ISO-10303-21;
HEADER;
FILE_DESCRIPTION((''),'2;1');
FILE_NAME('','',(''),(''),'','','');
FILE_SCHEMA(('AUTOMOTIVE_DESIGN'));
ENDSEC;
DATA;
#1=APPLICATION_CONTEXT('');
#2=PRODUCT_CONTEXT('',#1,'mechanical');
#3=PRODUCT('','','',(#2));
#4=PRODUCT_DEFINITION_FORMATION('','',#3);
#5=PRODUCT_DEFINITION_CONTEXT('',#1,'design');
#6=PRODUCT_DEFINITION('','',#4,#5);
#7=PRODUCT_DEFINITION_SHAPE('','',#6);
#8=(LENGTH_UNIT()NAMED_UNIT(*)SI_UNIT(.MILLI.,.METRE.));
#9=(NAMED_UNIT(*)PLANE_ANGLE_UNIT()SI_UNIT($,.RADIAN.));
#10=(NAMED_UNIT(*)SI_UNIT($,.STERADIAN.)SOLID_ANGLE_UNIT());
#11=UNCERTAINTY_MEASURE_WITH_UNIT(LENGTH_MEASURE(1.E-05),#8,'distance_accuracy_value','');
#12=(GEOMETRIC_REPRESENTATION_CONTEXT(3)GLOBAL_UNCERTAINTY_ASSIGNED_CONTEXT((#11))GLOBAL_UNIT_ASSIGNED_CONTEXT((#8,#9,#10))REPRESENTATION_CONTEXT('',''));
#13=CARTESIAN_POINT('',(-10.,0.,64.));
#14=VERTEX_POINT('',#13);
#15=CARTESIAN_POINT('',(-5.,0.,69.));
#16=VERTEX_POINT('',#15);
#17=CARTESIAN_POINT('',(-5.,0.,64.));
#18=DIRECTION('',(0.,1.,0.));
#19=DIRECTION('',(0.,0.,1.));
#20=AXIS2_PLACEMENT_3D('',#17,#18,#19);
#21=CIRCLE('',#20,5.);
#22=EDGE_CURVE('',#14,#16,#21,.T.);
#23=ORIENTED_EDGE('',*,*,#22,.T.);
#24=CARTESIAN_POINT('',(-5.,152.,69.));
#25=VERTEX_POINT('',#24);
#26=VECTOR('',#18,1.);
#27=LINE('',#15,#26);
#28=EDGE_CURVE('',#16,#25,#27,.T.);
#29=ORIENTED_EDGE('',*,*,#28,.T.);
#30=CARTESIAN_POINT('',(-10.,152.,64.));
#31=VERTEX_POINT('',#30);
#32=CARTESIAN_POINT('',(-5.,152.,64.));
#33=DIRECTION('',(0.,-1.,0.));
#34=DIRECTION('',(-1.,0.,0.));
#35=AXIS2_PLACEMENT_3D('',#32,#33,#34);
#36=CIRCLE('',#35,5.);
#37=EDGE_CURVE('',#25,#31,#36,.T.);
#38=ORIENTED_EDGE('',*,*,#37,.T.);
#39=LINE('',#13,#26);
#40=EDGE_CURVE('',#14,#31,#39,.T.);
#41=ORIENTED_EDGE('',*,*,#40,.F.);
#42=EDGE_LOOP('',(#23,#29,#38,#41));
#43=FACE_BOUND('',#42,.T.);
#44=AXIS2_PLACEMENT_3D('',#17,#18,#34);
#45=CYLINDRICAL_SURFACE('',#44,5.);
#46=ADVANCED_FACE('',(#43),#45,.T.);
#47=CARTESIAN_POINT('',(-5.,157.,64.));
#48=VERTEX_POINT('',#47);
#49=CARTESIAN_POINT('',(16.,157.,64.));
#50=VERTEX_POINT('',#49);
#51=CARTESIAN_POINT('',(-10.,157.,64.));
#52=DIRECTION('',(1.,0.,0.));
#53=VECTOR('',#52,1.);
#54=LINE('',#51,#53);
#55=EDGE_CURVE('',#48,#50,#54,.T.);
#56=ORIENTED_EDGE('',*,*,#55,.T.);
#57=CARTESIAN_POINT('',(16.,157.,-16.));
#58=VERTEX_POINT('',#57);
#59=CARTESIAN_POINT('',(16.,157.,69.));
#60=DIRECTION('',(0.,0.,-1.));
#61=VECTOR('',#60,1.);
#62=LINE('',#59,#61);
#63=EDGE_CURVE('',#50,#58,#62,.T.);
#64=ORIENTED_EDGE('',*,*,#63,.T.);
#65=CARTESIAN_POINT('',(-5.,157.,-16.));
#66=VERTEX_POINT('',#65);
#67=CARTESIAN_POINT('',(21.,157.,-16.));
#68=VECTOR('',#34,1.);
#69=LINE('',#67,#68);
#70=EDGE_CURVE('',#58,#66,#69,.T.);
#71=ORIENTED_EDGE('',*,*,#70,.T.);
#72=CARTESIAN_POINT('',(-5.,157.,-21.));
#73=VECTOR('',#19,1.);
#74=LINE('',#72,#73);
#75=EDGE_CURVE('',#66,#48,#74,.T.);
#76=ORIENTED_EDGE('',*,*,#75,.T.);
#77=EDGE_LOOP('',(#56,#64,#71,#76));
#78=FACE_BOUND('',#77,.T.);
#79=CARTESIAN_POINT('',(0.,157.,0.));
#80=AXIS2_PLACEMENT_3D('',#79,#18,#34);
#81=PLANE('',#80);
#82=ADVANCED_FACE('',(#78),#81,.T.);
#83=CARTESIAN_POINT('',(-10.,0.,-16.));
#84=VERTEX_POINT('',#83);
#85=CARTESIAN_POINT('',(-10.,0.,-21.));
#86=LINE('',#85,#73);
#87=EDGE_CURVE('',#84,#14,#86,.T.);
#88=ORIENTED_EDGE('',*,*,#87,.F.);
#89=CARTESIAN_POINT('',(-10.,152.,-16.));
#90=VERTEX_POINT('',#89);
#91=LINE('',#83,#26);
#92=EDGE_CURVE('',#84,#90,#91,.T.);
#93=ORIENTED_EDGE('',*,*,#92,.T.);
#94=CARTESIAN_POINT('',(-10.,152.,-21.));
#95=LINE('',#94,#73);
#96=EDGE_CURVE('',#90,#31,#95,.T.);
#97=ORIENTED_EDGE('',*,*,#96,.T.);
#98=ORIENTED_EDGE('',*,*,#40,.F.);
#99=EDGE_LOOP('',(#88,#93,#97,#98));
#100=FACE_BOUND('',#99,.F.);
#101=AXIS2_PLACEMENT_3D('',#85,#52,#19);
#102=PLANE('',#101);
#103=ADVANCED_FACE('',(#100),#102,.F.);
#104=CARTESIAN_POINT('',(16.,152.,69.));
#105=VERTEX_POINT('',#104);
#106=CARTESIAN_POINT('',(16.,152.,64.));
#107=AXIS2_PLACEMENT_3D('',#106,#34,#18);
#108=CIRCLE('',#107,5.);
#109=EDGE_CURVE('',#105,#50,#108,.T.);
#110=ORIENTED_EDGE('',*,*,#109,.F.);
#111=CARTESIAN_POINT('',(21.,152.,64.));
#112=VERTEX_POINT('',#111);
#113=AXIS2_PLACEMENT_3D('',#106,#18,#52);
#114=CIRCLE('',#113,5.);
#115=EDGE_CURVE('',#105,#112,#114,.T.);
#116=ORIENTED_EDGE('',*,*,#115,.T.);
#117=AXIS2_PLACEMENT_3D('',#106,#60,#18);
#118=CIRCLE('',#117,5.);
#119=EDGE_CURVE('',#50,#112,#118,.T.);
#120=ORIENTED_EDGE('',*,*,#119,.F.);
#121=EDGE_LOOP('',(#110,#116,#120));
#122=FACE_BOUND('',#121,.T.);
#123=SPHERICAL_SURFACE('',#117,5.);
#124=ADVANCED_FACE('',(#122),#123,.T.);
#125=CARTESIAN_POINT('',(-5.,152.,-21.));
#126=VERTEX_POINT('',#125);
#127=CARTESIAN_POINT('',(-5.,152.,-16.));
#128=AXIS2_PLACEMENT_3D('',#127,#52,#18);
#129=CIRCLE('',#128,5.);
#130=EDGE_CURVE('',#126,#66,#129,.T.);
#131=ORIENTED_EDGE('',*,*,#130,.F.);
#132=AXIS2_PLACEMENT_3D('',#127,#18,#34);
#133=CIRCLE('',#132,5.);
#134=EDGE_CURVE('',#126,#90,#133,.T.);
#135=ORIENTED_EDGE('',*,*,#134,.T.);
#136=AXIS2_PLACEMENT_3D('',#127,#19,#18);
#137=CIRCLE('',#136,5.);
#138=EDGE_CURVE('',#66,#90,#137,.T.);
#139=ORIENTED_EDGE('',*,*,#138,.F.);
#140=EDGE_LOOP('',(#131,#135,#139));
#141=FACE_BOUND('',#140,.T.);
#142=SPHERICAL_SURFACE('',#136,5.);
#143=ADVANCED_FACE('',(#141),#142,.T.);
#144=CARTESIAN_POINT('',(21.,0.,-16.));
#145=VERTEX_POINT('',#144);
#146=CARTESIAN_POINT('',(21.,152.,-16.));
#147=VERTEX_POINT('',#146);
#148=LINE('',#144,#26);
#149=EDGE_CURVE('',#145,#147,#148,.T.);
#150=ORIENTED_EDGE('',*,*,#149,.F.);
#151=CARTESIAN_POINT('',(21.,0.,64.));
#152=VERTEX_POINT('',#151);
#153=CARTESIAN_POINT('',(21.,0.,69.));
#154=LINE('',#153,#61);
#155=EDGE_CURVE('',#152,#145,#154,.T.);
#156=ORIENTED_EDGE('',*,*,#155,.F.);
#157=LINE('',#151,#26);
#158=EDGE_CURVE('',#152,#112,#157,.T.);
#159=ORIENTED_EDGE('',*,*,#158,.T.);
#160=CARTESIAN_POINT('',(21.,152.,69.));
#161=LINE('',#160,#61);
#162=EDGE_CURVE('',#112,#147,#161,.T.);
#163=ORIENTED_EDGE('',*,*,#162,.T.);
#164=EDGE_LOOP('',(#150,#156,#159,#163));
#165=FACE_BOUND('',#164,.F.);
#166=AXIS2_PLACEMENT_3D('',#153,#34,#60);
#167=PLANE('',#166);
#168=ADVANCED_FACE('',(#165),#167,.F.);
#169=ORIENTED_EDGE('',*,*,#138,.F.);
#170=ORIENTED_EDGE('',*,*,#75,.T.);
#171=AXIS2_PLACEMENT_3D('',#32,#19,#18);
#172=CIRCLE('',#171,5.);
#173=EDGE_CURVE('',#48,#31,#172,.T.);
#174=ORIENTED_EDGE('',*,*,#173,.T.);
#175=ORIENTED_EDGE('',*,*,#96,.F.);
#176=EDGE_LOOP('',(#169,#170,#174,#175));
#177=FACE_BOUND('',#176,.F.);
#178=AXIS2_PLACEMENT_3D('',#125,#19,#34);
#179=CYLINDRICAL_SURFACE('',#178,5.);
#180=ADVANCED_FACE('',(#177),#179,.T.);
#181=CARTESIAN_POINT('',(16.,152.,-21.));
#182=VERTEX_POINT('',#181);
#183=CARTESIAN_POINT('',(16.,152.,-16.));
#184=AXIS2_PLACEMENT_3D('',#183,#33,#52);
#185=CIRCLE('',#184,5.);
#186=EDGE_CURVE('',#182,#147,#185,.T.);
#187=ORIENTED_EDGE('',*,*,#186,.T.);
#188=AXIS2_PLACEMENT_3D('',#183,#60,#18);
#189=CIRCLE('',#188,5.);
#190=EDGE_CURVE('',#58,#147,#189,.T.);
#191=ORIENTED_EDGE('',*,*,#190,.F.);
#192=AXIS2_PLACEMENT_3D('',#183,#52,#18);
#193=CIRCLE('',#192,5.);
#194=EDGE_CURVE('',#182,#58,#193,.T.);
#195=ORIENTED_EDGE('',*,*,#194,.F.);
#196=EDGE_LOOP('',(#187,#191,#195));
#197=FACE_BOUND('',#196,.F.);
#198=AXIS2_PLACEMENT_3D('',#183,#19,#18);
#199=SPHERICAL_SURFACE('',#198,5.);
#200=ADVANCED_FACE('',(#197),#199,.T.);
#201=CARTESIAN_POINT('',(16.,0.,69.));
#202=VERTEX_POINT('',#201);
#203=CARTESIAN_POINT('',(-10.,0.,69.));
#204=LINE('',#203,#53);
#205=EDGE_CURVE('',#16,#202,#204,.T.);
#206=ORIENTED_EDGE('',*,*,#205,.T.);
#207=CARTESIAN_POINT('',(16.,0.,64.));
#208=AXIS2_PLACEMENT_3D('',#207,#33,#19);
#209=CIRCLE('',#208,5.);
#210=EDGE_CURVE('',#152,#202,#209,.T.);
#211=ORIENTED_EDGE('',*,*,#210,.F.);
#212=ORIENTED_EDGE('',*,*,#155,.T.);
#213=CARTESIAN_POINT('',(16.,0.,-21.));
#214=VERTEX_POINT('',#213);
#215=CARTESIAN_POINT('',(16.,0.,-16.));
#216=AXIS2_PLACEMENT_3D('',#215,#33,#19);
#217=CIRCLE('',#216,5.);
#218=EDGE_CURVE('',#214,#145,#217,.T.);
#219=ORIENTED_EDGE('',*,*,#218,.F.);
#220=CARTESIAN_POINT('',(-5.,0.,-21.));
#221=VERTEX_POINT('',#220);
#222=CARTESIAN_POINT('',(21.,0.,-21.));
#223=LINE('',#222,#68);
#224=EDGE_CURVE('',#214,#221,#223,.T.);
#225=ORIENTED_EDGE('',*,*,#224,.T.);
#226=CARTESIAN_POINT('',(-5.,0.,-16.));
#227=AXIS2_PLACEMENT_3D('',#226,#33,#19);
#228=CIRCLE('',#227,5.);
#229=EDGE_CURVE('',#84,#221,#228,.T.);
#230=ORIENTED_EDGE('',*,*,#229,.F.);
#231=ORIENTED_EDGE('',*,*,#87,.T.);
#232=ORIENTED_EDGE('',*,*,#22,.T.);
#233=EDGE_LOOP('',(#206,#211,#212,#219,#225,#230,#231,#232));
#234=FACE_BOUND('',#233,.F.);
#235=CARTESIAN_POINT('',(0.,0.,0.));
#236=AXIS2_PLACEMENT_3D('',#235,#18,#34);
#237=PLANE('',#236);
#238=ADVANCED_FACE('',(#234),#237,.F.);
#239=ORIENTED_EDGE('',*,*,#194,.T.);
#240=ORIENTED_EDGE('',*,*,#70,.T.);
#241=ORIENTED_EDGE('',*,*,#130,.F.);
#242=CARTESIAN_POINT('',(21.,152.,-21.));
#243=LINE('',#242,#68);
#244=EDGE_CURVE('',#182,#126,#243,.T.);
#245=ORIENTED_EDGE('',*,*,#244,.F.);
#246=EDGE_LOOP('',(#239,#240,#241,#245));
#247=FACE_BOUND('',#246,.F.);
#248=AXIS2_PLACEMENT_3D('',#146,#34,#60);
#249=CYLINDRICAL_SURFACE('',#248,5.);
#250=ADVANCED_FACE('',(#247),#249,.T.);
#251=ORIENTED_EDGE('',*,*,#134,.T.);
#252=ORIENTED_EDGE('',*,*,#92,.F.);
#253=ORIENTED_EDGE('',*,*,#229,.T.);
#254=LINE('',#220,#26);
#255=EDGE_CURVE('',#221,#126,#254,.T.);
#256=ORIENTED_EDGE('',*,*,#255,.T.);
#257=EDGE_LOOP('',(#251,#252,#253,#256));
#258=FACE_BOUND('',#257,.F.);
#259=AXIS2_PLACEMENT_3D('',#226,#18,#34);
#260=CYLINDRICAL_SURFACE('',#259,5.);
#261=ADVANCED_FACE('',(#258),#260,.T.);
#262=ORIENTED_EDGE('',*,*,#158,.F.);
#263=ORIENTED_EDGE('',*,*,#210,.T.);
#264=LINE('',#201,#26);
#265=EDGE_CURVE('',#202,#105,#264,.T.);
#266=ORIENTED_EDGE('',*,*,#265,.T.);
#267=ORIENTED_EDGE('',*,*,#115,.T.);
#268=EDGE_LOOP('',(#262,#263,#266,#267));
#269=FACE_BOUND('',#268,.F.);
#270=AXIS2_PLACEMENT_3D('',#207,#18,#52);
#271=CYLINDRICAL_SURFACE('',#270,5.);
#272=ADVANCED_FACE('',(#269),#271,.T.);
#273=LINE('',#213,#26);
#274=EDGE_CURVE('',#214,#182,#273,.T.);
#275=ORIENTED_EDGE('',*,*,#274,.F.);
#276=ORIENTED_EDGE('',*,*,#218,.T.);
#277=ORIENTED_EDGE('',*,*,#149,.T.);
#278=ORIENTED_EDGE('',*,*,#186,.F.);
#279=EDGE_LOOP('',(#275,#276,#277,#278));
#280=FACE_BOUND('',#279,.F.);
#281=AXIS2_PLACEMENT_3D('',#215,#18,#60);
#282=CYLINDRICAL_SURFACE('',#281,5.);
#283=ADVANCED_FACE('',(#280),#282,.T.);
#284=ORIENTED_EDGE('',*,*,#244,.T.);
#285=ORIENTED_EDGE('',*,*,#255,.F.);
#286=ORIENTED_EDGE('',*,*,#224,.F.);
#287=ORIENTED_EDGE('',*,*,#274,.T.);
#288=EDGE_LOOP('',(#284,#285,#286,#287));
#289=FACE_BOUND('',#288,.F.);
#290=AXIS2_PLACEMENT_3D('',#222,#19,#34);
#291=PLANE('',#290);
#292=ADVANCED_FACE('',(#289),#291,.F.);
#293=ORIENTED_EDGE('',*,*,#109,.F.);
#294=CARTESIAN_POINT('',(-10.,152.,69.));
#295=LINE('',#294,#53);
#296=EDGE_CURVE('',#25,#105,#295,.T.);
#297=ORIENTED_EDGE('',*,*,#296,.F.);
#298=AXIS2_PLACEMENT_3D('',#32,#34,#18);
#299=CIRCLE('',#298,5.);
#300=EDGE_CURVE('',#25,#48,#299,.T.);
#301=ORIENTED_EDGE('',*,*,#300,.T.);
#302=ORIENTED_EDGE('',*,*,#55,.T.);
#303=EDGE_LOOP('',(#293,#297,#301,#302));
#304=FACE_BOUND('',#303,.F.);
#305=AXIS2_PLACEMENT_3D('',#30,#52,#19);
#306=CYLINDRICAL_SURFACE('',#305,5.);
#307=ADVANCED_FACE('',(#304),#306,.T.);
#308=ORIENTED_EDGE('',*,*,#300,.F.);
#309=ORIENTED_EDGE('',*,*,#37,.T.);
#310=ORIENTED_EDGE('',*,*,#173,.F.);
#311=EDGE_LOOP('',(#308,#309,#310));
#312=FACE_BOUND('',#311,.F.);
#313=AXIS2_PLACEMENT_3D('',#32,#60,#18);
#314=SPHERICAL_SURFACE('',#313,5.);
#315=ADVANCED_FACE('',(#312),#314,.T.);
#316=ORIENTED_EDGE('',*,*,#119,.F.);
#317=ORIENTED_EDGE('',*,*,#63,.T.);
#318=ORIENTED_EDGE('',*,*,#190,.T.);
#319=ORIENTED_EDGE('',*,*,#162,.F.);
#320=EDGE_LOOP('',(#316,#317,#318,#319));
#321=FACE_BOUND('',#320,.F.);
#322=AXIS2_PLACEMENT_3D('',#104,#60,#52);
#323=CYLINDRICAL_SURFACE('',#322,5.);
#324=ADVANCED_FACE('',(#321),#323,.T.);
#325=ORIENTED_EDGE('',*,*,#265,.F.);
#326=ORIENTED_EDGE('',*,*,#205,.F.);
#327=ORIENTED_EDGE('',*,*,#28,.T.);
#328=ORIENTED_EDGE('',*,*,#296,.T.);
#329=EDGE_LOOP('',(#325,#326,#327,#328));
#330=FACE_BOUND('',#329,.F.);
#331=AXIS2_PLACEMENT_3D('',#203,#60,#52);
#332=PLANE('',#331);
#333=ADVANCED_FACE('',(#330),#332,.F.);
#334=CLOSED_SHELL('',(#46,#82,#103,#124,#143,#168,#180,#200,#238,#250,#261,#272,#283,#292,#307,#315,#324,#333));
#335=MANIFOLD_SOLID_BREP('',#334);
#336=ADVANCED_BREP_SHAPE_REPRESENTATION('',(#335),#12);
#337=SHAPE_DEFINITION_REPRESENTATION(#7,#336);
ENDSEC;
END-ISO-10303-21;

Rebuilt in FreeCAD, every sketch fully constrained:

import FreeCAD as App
import Part
import Sketcher
Q = App.Units.Quantity


def edges_at(feature, points):
    """Names of the edges that pass closest to the given points."""
    edges = feature.Shape.Edges
    near = lambda p: min(range(len(edges)), key=lambda i: edges[i].distToShape(Part.Vertex(*p))[0])
    return sorted({f"Edge{near(p) + 1}" for p in points})

doc = App.newDocument("Part")
body = doc.addObject("PartDesign::Body", "Body")

sketch1 = doc.addObject("Sketcher::SketchObject", "Sketch")
body.addObject(sketch1)
sketch1.AttachmentSupport = (doc.XZ_Plane, [""])
sketch1.MapMode = "FlatFace"
sketch1.addGeometry([
    Part.LineSegment(App.Vector(-10, -21, 0), App.Vector(-10, 69, 0)),
    Part.LineSegment(App.Vector(-10, 69, 0), App.Vector(21, 69, 0)),
    Part.LineSegment(App.Vector(21, 69, 0), App.Vector(21, -21, 0)),
    Part.LineSegment(App.Vector(21, -21, 0), App.Vector(-10, -21, 0)),
], False)
sketch1.addConstraint([
    Sketcher.Constraint("Coincident", 0, 2, 1, 1),
    Sketcher.Constraint("Coincident", 1, 2, 2, 1),
    Sketcher.Constraint("Coincident", 2, 2, 3, 1),
    Sketcher.Constraint("Coincident", 3, 2, 0, 1),
    Sketcher.Constraint("Vertical", 0),
    Sketcher.Constraint("Horizontal", 1),
    Sketcher.Constraint("Vertical", 2),
    Sketcher.Constraint("Horizontal", 3),
    Sketcher.Constraint("DistanceX", 1, 1, 1, 2, Q("31 mm")),
    Sketcher.Constraint("DistanceY", 0, 1, 0, 2, Q("90 mm")),
    Sketcher.Constraint("DistanceX", 0, 2, -1, 1, Q("10 mm")),
    Sketcher.Constraint("DistanceY", -1, 1, 0, 2, Q("69 mm")),
])
pad1 = doc.addObject("PartDesign::Pad", "Pad")
body.addObject(pad1)
pad1.Profile = sketch1
pad1.Length = 157
pad1.Reversed = True
doc.recompute()

fillet = doc.addObject("PartDesign::Fillet", "Fillet")
body.addObject(fillet)
fillet.Base = (pad1, edges_at(pad1, [
    (21, 157, 24),
    (-10, 157, 24),
    (5.5, 157, 69),
    (5.5, 157, -21),
    (21, 78.5, -21),
    (-10, 78.5, -21),
    (-10, 78.5, 69),
    (21, 78.5, 69),
]))
fillet.Radius = 5

doc.recompute()
